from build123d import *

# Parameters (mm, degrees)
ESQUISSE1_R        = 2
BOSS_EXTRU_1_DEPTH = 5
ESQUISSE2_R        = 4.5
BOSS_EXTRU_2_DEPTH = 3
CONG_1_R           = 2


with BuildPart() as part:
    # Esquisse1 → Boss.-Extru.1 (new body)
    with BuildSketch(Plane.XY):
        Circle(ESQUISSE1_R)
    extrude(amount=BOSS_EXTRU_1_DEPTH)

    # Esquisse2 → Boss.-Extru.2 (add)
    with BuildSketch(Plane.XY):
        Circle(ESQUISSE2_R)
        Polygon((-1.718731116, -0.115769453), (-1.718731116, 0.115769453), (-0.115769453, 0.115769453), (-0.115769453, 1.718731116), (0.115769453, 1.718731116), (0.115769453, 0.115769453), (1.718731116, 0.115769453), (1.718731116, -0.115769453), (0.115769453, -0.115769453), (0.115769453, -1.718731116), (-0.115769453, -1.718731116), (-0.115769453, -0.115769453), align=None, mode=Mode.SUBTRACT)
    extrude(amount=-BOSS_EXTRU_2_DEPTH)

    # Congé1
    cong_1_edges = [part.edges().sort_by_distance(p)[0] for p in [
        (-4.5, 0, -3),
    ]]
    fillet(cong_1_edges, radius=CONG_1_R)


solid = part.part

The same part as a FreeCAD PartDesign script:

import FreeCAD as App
import Part
import Sketcher
from FreeCAD import Vector
Q = App.Units.Quantity


def edges_at(feature, points):
    """Names of the edges that pass closest to the given points."""
    edges = feature.Shape.Edges
    near = lambda p: min(range(len(edges)), key=lambda i: edges[i].distToShape(Part.Vertex(*p))[0])
    return sorted({f"Edge{near(p) + 1}" for p in points})


def add_polygon(sketch, points):
    """Adds a closed chain of lines whose ends are joined by coincident constraints."""
    first, n = sketch.GeometryCount, len(points)
    for a, b in zip(points, points[1:] + points[:1]):
        sketch.addGeometry(Part.LineSegment(App.Vector(*a, 0), App.Vector(*b, 0)), False)
    for i in range(n):
        sketch.addConstraint(Sketcher.Constraint("Coincident", first + i, 2, first + (i + 1) % n, 1))

doc = App.newDocument("Part")
params = doc.addObject("Spreadsheet::Sheet", "Params")
for row, (alias, value) in enumerate([
    ("sketch1_diameter", "4 mm"),
    ("pad1_length", "5 mm"),
    ("sketch2_diameter", "9 mm"),
    ("pad2_length", "3 mm"),
    ("fillet_radius", "2 mm"),
], start=1):
    params.set(f"A{row}", alias)
    params.set(f"B{row}", "=" + value)
    params.setAlias(f"B{row}", alias)

body = doc.addObject("PartDesign::Body", "Body")

# Sketch on XY plane
sketch1 = doc.addObject("Sketcher::SketchObject", "Sketch")
body.addObject(sketch1)
sketch1.AttachmentSupport = (doc.XY_Plane, [""])
sketch1.MapMode = "FlatFace"
sketch1.addGeometry(Part.Circle(Vector(0, 0, 0), Vector(0, 0, 1), 2), False)
sketch1.addConstraint([
    Sketcher.Constraint("Coincident", 0, 3, -1, 1),
    Sketcher.Constraint("Diameter", 0, Q("4 mm")),
])
sketch1.setExpression("Constraints[1]", "Params.sketch1_diameter")
pad1 = doc.addObject("PartDesign::Pad", "Pad")
body.addObject(pad1)
pad1.Profile = sketch1
pad1.setExpression("Length", "Params.pad1_length")

# Sketch on XY plane
sketch2 = doc.addObject("Sketcher::SketchObject", "Sketch001")
body.addObject(sketch2)
sketch2.AttachmentSupport = (doc.XY_Plane, [""])
sketch2.MapMode = "FlatFace"
sketch2.addGeometry(Part.Circle(Vector(0, 0, 0), Vector(0, 0, 1), 4.5), False)  # 0
add_polygon(sketch2, [(-0.12, -0.12), (-1.72, -0.12), (-1.72, 0.12), (-0.12, 0.12), (-0.12, 1.72), (0.12, 1.72), (0.12, 0.12), (1.72, 0.12), (1.72, -0.12), (0.12, -0.12), (0.12, -1.72), (-0.12, -1.72)])  # lines 1-12
sketch2.addConstraint([
    Sketcher.Constraint("Horizontal", 1),
    Sketcher.Constraint("Vertical", 2),
    Sketcher.Constraint("Horizontal", 3),
    Sketcher.Constraint("Vertical", 4),
    Sketcher.Constraint("Horizontal", 5),
    Sketcher.Constraint("Vertical", 6),
    Sketcher.Constraint("Horizontal", 7),
    Sketcher.Constraint("Vertical", 8),
    Sketcher.Constraint("Horizontal", 9),
    Sketcher.Constraint("Vertical", 10),
    Sketcher.Constraint("Horizontal", 11),
    Sketcher.Constraint("Vertical", 12),
    Sketcher.Constraint("Coincident", 0, 3, -1, 1),
    Sketcher.Constraint("Symmetric", 1, 2, 7, 2, -1, 1),
    Sketcher.Constraint("Symmetric", 3, 2, 9, 2, -1, 1),
    Sketcher.Constraint("Symmetric", 5, 2, 11, 2, -1, 1),
    Sketcher.Constraint("Symmetric", 3, 2, 6, 2, -2),
    Sketcher.Constraint("Equal", 11, 2),
    Sketcher.Constraint("Equal", 9, 4),
    Sketcher.Constraint("Diameter", 0, Q("9 mm")),
    Sketcher.Constraint("DistanceX", 1, 2, 1, 1, Q("1.602962 mm")),
    Sketcher.Constraint("DistanceX", 5, 1, 5, 2, Q("0.231539 mm")),
])
sketch2.setExpression("Constraints[31]", "Params.sketch2_diameter")
pad2 = doc.addObject("PartDesign::Pad", "Pad001")
body.addObject(pad2)
pad2.Profile = sketch2
pad2.setExpression("Length", "Params.pad2_length")
pad2.Reversed = True
doc.recompute()

fillet = doc.addObject("PartDesign::Fillet", "Fillet")
body.addObject(fillet)
fillet.Base = (pad2, edges_at(pad2, [(-4.5, 0, -3)]))
fillet.setExpression("Radius", "Params.fillet_radius")

doc.recompute()
